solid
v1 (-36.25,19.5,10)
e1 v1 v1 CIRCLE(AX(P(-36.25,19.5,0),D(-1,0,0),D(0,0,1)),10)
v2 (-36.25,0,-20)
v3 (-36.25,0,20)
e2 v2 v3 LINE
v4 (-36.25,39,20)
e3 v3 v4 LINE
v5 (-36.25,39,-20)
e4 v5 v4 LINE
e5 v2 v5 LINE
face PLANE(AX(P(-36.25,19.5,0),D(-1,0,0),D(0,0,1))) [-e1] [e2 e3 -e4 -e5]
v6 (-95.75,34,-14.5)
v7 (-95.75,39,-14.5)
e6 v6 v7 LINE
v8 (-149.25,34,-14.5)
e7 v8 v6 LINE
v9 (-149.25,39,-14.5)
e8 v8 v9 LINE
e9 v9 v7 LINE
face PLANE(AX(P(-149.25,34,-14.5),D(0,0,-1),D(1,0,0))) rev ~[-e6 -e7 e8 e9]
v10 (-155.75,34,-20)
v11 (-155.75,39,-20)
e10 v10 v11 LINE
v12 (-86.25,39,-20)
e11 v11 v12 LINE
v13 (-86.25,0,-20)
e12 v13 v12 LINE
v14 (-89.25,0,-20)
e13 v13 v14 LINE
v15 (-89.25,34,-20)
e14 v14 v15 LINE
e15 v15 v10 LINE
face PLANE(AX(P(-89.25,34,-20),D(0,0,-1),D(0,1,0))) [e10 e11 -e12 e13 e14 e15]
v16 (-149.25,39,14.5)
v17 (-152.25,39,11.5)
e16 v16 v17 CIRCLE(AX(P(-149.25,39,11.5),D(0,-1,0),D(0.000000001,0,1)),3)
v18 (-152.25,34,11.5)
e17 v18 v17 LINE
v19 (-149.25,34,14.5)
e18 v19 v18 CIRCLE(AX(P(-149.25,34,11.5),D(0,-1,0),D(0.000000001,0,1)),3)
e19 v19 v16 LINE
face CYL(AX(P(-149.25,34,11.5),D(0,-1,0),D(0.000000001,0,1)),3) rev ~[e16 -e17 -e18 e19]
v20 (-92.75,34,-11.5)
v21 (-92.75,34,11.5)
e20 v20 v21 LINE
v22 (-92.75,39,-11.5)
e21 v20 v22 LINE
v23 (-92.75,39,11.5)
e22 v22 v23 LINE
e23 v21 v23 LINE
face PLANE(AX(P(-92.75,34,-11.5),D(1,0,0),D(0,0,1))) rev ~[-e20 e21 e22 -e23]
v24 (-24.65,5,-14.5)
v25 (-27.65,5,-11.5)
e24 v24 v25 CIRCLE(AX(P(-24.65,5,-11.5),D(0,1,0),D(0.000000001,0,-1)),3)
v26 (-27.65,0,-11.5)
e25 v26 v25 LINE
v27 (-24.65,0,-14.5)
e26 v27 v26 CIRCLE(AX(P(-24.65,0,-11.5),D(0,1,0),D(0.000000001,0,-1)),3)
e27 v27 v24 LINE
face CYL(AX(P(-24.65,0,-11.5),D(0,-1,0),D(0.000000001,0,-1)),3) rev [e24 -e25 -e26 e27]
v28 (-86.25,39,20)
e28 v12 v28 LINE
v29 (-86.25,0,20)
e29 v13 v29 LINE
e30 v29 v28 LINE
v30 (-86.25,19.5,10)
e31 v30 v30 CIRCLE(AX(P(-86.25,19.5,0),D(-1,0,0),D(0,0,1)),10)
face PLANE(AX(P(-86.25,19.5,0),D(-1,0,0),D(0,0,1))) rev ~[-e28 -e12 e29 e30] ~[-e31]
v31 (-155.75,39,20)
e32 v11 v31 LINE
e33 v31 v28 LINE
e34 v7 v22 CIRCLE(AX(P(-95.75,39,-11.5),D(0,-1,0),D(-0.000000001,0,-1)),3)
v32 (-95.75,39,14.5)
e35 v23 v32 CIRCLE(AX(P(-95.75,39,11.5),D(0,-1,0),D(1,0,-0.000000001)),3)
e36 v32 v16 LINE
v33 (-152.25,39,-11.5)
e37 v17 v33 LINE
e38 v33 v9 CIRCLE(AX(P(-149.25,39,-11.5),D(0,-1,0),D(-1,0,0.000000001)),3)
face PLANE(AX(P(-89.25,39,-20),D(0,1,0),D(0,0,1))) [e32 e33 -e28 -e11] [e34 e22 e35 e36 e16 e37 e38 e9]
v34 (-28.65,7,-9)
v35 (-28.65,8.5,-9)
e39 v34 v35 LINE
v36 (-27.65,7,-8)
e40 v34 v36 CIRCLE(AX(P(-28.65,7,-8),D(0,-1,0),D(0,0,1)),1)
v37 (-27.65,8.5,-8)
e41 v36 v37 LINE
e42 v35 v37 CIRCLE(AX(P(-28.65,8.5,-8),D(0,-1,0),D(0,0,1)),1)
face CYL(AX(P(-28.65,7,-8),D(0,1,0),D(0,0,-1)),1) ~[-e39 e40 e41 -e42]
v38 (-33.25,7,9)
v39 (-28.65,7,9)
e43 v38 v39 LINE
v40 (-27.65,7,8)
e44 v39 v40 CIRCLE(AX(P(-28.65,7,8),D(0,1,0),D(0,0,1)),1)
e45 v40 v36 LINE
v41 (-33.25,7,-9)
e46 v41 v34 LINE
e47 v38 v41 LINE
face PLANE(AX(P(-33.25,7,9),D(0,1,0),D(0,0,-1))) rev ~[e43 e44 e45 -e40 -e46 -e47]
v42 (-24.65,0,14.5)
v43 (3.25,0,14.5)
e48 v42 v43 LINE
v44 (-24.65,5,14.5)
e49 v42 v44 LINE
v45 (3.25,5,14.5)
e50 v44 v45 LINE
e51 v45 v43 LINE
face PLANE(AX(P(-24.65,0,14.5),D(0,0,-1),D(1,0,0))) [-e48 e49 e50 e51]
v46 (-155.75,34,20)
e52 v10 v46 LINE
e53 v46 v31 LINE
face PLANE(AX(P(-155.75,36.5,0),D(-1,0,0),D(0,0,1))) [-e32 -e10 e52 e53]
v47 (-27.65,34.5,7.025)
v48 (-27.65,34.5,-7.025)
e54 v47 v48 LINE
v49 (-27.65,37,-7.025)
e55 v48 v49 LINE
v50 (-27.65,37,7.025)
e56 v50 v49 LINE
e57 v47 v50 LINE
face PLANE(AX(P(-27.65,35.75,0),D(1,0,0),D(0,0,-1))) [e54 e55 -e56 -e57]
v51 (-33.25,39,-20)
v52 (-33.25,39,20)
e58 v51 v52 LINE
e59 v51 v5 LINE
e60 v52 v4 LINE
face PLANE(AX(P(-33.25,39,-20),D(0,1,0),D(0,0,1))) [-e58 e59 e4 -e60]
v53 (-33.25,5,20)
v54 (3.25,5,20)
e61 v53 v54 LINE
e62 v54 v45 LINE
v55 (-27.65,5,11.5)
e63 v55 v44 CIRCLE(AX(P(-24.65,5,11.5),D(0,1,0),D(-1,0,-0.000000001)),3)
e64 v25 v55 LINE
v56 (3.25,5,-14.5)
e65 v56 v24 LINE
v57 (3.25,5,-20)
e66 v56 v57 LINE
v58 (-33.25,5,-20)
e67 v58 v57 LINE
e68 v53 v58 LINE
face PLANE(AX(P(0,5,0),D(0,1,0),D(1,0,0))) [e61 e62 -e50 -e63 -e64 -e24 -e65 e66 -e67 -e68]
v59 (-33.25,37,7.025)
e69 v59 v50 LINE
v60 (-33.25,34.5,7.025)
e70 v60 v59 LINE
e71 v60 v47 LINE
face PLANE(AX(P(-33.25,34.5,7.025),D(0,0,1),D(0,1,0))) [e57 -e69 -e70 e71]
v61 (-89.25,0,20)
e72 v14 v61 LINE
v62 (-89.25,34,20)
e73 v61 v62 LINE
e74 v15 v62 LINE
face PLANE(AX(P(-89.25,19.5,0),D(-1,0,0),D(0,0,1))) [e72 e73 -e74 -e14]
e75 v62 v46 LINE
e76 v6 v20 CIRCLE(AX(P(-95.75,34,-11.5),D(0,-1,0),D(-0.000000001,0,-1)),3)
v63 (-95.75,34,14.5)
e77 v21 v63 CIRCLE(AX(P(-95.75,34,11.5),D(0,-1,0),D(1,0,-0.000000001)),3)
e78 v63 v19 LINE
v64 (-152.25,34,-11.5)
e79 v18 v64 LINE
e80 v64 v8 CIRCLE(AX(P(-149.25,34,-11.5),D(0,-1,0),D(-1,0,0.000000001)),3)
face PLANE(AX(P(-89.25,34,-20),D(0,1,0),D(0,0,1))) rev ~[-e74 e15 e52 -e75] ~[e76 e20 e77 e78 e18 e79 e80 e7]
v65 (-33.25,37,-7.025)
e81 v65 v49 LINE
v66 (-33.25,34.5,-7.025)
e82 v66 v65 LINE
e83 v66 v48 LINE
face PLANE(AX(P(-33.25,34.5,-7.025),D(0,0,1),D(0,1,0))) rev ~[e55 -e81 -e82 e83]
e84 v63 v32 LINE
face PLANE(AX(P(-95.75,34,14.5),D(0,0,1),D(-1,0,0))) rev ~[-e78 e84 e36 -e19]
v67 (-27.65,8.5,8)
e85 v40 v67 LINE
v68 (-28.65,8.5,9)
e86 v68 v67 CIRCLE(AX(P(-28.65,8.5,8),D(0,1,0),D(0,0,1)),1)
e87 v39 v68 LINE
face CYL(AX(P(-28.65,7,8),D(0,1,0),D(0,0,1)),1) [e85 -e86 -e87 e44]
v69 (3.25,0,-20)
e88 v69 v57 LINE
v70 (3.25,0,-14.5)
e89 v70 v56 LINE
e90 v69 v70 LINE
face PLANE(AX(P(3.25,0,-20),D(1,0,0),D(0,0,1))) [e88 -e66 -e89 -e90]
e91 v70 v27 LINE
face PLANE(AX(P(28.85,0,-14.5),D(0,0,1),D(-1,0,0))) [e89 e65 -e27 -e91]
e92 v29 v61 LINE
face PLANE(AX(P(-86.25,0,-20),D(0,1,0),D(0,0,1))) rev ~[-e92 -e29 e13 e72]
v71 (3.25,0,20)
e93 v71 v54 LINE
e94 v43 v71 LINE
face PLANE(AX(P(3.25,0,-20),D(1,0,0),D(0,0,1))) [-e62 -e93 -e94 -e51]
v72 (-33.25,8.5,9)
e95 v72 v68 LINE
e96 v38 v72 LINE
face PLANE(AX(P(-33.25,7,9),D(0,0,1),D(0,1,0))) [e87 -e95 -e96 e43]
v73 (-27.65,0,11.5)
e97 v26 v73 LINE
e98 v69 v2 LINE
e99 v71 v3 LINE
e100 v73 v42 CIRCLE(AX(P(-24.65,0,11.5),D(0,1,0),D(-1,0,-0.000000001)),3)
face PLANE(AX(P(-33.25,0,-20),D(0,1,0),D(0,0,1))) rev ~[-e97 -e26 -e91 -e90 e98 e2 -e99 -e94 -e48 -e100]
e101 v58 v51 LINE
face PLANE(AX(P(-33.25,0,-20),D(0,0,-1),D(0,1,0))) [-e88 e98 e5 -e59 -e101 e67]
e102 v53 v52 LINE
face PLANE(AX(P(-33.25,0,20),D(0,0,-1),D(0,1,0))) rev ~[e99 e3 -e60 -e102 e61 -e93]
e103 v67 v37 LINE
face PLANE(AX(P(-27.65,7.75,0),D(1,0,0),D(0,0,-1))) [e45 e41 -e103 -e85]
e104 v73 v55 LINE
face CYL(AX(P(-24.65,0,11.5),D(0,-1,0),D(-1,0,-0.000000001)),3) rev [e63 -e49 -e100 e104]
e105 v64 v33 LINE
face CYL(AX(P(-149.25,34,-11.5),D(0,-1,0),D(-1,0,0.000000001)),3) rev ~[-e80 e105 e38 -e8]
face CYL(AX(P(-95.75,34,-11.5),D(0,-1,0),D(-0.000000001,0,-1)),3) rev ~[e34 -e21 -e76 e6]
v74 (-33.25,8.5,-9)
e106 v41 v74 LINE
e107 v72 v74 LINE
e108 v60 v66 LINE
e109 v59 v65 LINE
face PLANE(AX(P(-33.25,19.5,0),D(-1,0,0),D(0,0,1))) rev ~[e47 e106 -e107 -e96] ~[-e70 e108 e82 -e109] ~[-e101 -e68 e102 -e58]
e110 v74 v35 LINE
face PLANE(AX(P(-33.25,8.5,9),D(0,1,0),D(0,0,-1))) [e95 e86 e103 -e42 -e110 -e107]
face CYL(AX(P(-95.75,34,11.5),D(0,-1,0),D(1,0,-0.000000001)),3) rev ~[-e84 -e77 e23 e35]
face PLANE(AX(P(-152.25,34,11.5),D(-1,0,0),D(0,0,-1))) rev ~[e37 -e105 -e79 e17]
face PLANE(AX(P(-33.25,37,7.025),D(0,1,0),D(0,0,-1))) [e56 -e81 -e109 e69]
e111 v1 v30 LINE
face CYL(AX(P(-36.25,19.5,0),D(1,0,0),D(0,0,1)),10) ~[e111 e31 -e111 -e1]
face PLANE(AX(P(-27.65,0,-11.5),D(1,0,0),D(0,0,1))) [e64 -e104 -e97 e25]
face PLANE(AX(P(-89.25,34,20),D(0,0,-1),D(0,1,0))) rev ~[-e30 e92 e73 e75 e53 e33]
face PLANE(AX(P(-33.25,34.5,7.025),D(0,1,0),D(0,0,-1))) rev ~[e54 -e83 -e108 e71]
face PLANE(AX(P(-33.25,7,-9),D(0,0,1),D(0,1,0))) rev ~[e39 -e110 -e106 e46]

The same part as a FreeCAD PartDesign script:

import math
import FreeCAD as App
import Part
import Sketcher


def edges_at(feature, points):
    """Names of the edges that pass closest to the given points."""
    edges = feature.Shape.Edges
    near = lambda p: min(range(len(edges)), key=lambda i: edges[i].distToShape(Part.Vertex(*p))[0])
    return sorted({f"Edge{near(p) + 1}" for p in points})


def add_polygon(sketch, points):
    """Adds a closed chain of lines whose ends are joined by coincident constraints."""
    first, n = sketch.GeometryCount, len(points)
    for a, b in zip(points, points[1:] + points[:1]):
        sketch.addGeometry(Part.LineSegment(App.Vector(*a, 0), App.Vector(*b, 0)), False)
    for i in range(n):
        sketch.addConstraint(Sketcher.Constraint("Coincident", first + i, 2, first + (i + 1) % n, 1))

doc = App.newDocument("Part")
body = doc.addObject("PartDesign::Body", "Body")

# Sketch on XZ plane
sketch1 = doc.addObject("Sketcher::SketchObject", "Sketch")
body.addObject(sketch1)
sketch1.AttachmentSupport = (doc.XZ_Plane, [""])
sketch1.MapMode = "FlatFace"
add_polygon(sketch1, [(-33.2, -20), (-33.2, 20), (33.2, 20), (33.2, -20)])  # lines 0-3
sketch1.addGeometry(Part.LineSegment(App.Vector(-27.6, 11.5, 0), App.Vector(-27.6, -11.5, 0)), False)  # 4
sketch1.addGeometry(Part.ArcOfCircle(Part.Circle(App.Vector(-24.7, -11.5, 0), App.Vector(0, 0, 1), 3), math.radians(180), math.radians(270)), False)  # 5
sketch1.addGeometry(Part.LineSegment(App.Vector(-24.6, -14.5, 0), App.Vector(28.9, -14.5, 0)), False)  # 6
sketch1.addGeometry(Part.ArcOfCircle(Part.Circle(App.Vector(28.9, -11.5, 0), App.Vector(0, 0, 1), 3), math.radians(-90), math.radians(0)), False)  # 7
sketch1.addGeometry(Part.LineSegment(App.Vector(31.9, -11.5, 0), App.Vector(31.9, 11.5, 0)), False)  # 8
sketch1.addGeometry(Part.ArcOfCircle(Part.Circle(App.Vector(28.9, 11.5, 0), App.Vector(0, 0, 1), 3), math.radians(0), math.radians(90)), False)  # 9
sketch1.addGeometry(Part.LineSegment(App.Vector(28.9, 14.5, 0), App.Vector(-24.6, 14.5, 0)), False)  # 10
sketch1.addGeometry(Part.ArcOfCircle(Part.Circle(App.Vector(-24.7, 11.5, 0), App.Vector(0, 0, 1), 3), math.radians(90), math.radians(180)), False)  # 11
sketch1.addConstraint(Sketcher.Constraint("Tangent", 4, 2, 5, 1))
sketch1.addConstraint(Sketcher.Constraint("Tangent", 5, 2, 6, 1))
sketch1.addConstraint(Sketcher.Constraint("Tangent", 6, 2, 7, 1))
sketch1.addConstraint(Sketcher.Constraint("Tangent", 7, 2, 8, 1))
sketch1.addConstraint(Sketcher.Constraint("Tangent", 8, 2, 9, 1))
sketch1.addConstraint(Sketcher.Constraint("Tangent", 9, 2, 10, 1))
sketch1.addConstraint(Sketcher.Constraint("Tangent", 10, 2, 11, 1))
sketch1.addConstraint(Sketcher.Constraint("Tangent", 11, 2, 4, 1))
sketch1.addConstraint(Sketcher.Constraint("Vertical", 0))
sketch1.addConstraint(Sketcher.Constraint("Horizontal", 1))
sketch1.addConstraint(Sketcher.Constraint("Vertical", 2))
sketch1.addConstraint(Sketcher.Constraint("Horizontal", 3))
sketch1.addConstraint(Sketcher.Constraint("Vertical", 4))
sketch1.addConstraint(Sketcher.Constraint("Horizontal", 6))
sketch1.addConstraint(Sketcher.Constraint("Vertical", 8))
sketch1.addConstraint(Sketcher.Constraint("Horizontal", 10))
sketch1.addConstraint(Sketcher.Constraint("Equal", 5, 7))
sketch1.addConstraint(Sketcher.Constraint("Equal", 7, 9))
sketch1.addConstraint(Sketcher.Constraint("Equal", 9, 11))
sketch1.addConstraint(Sketcher.Constraint("Symmetric", 0, 2, 2, 2, -1, 1))
sketch1.addConstraint(Sketcher.Constraint("Radius", 5, 3.0))
sketch1.addConstraint(Sketcher.Constraint("DistanceY", 0, 1, 0, 2, 40.0))
sketch1.addConstraint(Sketcher.Constraint("DistanceY", 4, 2, 4, 1, 23.0))
sketch1.addConstraint(Sketcher.Constraint("DistanceX", 1, 1, 1, 2, 66.5))
sketch1.addConstraint(Sketcher.Constraint("DistanceX", 6, 1, 6, 2, 53.5))
sketch1.addConstraint(Sketcher.Constraint("DistanceY", 5, 3, -1, 1, 11.5))
sketch1.addConstraint(Sketcher.Constraint("DistanceX", 0, 2, 11, 3, 8.6))
pad1 = doc.addObject("PartDesign::Pad", "Pad")
body.addObject(pad1)
pad1.Profile = sketch1
pad1.Length = 5
pad1.Reversed = True

# Sketch on YZ plane
sketch2 = doc.addObject("Sketcher::SketchObject", "Sketch001")
body.addObject(sketch2)
sketch2.AttachmentSupport = (doc.YZ_Plane, [""])
sketch2.MapMode = "FlatFace"
sketch2.AttachmentOffset = App.Placement(App.Vector(0, 0, -33.25), App.Rotation())
add_polygon(sketch2, [(39, -20), (0, -20), (0, 20), (39, 20)])  # lines 0-3
sketch2.addConstraint(Sketcher.Constraint("Horizontal", 0))
sketch2.addConstraint(Sketcher.Constraint("Vertical", 1))
sketch2.addConstraint(Sketcher.Constraint("Horizontal", 2))
sketch2.addConstraint(Sketcher.Constraint("Vertical", 3))
sketch2.addConstraint(Sketcher.Constraint("Symmetric", 0, 2, 1, 2, -1, 1))
sketch2.addConstraint(Sketcher.Constraint("DistanceX", 0, 2, 0, 1, 39.0))
sketch2.addConstraint(Sketcher.Constraint("DistanceY", 1, 1, 1, 2, 40.0))
pad2 = doc.addObject("PartDesign::Pad", "Pad001")
body.addObject(pad2)
pad2.Profile = sketch2
pad2.Length = 3
pad2.Reversed = True

# Sketch on YZ plane
sketch3 = doc.addObject("Sketcher::SketchObject", "Sketch002")
body.addObject(sketch3)
sketch3.AttachmentSupport = (doc.YZ_Plane, [""])
sketch3.MapMode = "FlatFace"
sketch3.AttachmentOffset = App.Placement(App.Vector(0, 0, -33.25), App.Rotation())
add_polygon(sketch3, [(37, 7), (34.5, 7), (34.5, -7), (37, -7)])  # lines 0-3
add_polygon(sketch3, [(8.5, 9), (7, 9), (7, -9), (8.5, -9)])  # lines 4-7
sketch3.addConstraint(Sketcher.Constraint("Horizontal", 0))
sketch3.addConstraint(Sketcher.Constraint("Vertical", 1))
sketch3.addConstraint(Sketcher.Constraint("Horizontal", 2))
sketch3.addConstraint(Sketcher.Constraint("Vertical", 3))
sketch3.addConstraint(Sketcher.Constraint("Horizontal", 4))
sketch3.addConstraint(Sketcher.Constraint("Vertical", 5))
sketch3.addConstraint(Sketcher.Constraint("Horizontal", 6))
sketch3.addConstraint(Sketcher.Constraint("Vertical", 7))
sketch3.addConstraint(Sketcher.Constraint("DistanceY", 5, 2, 5, 1, 18.0))
sketch3.addConstraint(Sketcher.Constraint("DistanceX", 0, 2, 0, 1, 2.5))
sketch3.addConstraint(Sketcher.Constraint("DistanceX", 4, 2, 4, 1, 1.5))
sketch3.addConstraint(Sketcher.Constraint("DistanceX", -1, 1, 2, 2, 37.0))
sketch3.addConstraint(Sketcher.Constraint("DistanceX", -1, 1, 4, 2, 7.0))
sketch3.addConstraint(Sketcher.Constraint("DistanceY", -1, 1, 4, 2, 9.0))
sketch3.addConstraint(Sketcher.Constraint("DistanceY", 1, 2, 1, 1, 14.05))
sketch3.addConstraint(Sketcher.Constraint("DistanceY", -1, 1, 0, 2, 7.025))
pad3 = doc.addObject("PartDesign::Pad", "Pad002")
body.addObject(pad3)
pad3.Profile = sketch3
pad3.Length = 5.6
doc.recompute()

fillet = doc.addObject("PartDesign::Fillet", "Fillet")
body.addObject(fillet)
fillet.Base = (pad3, edges_at(pad3, [(-27.65, 7.75, -9), (-27.65, 7.75, 9)]))
fillet.Radius = 1
doc.recompute()

fillet2 = doc.addObject("PartDesign::Fillet", "Fillet001")
body.addObject(fillet2)
fillet2.Base = (fillet, edges_at(fillet, [(33.25, 2.5, 20), (33.25, 2.5, -20)]))
fillet2.Radius = 10

# Sketch on XZ plane
sketch4 = doc.addObject("Sketcher::SketchObject", "Sketch003")
body.addObject(sketch4)
sketch4.AttachmentSupport = (doc.XZ_Plane, [""])
sketch4.MapMode = "FlatFace"
add_polygon(sketch4, [(3, 20), (3, -20), (33, -20), (33, 20)])  # lines 0-3
sketch4.addConstraint(Sketcher.Constraint("Vertical", 0))
sketch4.addConstraint(Sketcher.Constraint("Horizontal", 1))
sketch4.addConstraint(Sketcher.Constraint("Vertical", 2))
sketch4.addConstraint(Sketcher.Constraint("Horizontal", 3))
sketch4.addConstraint(Sketcher.Constraint("DistanceX", 1, 1, 1, 2, 30.0))
sketch4.addConstraint(Sketcher.Constraint("DistanceY", 0, 2, 0, 1, 40.0))
sketch4.addConstraint(Sketcher.Constraint("DistanceY", 0, 2, -1, 1, 20.0))
sketch4.addConstraint(Sketcher.Constraint("DistanceX", -1, 1, 0, 2, 3.25))
pocket1 = doc.addObject("PartDesign::Pocket", "Pocket")
body.addObject(pocket1)
pocket1.Profile = sketch4
pocket1.Length = 10

# Sketch on YZ plane
sketch5 = doc.addObject("Sketcher::SketchObject", "Sketch004")
body.addObject(sketch5)
sketch5.AttachmentSupport = (doc.YZ_Plane, [""])
sketch5.MapMode = "FlatFace"
sketch5.AttachmentOffset = App.Placement(App.Vector(0, 0, -36.25), App.Rotation())
sketch5.addGeometry(Part.Circle(App.Vector(20, 0, 0), App.Vector(0, 0, 1), 10), False)
sketch5.addConstraint(Sketcher.Constraint("PointOnObject", 0, 3, -1))
sketch5.addConstraint(Sketcher.Constraint("Diameter", 0, 20.0))
sketch5.addConstraint(Sketcher.Constraint("DistanceX", -1, 1, 0, 3, 19.5))
pad4 = doc.addObject("PartDesign::Pad", "Pad003")
body.addObject(pad4)
pad4.Profile = sketch5
pad4.Length = 50
pad4.Reversed = True

# Sketch on YZ plane
sketch6 = doc.addObject("Sketcher::SketchObject", "Sketch005")
body.addObject(sketch6)
sketch6.AttachmentSupport = (doc.YZ_Plane, [""])
sketch6.MapMode = "FlatFace"
sketch6.AttachmentOffset = App.Placement(App.Vector(0, 0, -86.25), App.Rotation())
add_polygon(sketch6, [(39, -20), (0, -20), (0, 20), (39, 20)])  # lines 0-3
sketch6.addConstraint(Sketcher.Constraint("Horizontal", 0))
sketch6.addConstraint(Sketcher.Constraint("Vertical", 1))
sketch6.addConstraint(Sketcher.Constraint("Horizontal", 2))
sketch6.addConstraint(Sketcher.Constraint("Vertical", 3))
sketch6.addConstraint(Sketcher.Constraint("Symmetric", 0, 2, 1, 2, -1, 1))
sketch6.addConstraint(Sketcher.Constraint("DistanceX", 0, 2, 0, 1, 39.0))
sketch6.addConstraint(Sketcher.Constraint("DistanceY", 1, 1, 1, 2, 40.0))
pad5 = doc.addObject("PartDesign::Pad", "Pad004")
body.addObject(pad5)
pad5.Profile = sketch6
pad5.Length = 3
pad5.Reversed = True

# Sketch on YZ plane
sketch7 = doc.addObject("Sketcher::SketchObject", "Sketch006")
body.addObject(sketch7)
sketch7.AttachmentSupport = (doc.YZ_Plane, [""])
sketch7.MapMode = "FlatFace"
sketch7.AttachmentOffset = App.Placement(App.Vector(0, 0, -89.25), App.Rotation())
add_polygon(sketch7, [(39, -20), (34, -20), (34, 20), (39, 20)])  # lines 0-3
sketch7.addConstraint(Sketcher.Constraint("Horizontal", 0))
sketch7.addConstraint(Sketcher.Constraint("Vertical", 1))
sketch7.addConstraint(Sketcher.Constraint("Horizontal", 2))
sketch7.addConstraint(Sketcher.Constraint("Vertical", 3))
sketch7.addConstraint(Sketcher.Constraint("DistanceX", 0, 2, 0, 1, 5.0))
sketch7.addConstraint(Sketcher.Constraint("DistanceY", 1, 1, 1, 2, 40.0))
sketch7.addConstraint(Sketcher.Constraint("DistanceX", -1, 1, 0, 2, 34.0))
sketch7.addConstraint(Sketcher.Constraint("DistanceY", 0, 2, -1, 1, 20.0))
pad6 = doc.addObject("PartDesign::Pad", "Pad005")
body.addObject(pad6)
pad6.Profile = sketch7
pad6.Length = 66.5
pad6.Reversed = True

# Sketch on XZ plane
sketch8 = doc.addObject("Sketcher::SketchObject", "Sketch007")
body.addObject(sketch8)
sketch8.AttachmentSupport = (doc.XZ_Plane, [""])
sketch8.MapMode = "FlatFace"
sketch8.AttachmentOffset = App.Placement(App.Vector(0, 0, -34), App.Rotation())
sketch8.addGeometry(Part.LineSegment(App.Vector(-152.2, 11.5, 0), App.Vector(-152.2, -11.5, 0)), False)
sketch8.addGeometry(Part.ArcOfCircle(Part.Circle(App.Vector(-149.3, -11.5, 0), App.Vector(0, 0, 1), 3), math.radians(180), math.radians(270)), False)
sketch8.addGeometry(Part.LineSegment(App.Vector(-149.2, -14.5, 0), App.Vector(-95.8, -14.5, 0)), False)
sketch8.addGeometry(Part.ArcOfCircle(Part.Circle(App.Vector(-95.7, -11.5, 0), App.Vector(0, 0, 1), 3), math.radians(-90), math.radians(0)), False)
sketch8.addGeometry(Part.LineSegment(App.Vector(-92.8, -11.5, 0), App.Vector(-92.8, 11.5, 0)), False)
sketch8.addGeometry(Part.ArcOfCircle(Part.Circle(App.Vector(-95.7, 11.5, 0), App.Vector(0, 0, 1), 3), math.radians(0), math.radians(90)), False)
sketch8.addGeometry(Part.LineSegment(App.Vector(-95.8, 14.5, 0), App.Vector(-149.2, 14.5, 0)), False)
sketch8.addGeometry(Part.ArcOfCircle(Part.Circle(App.Vector(-149.3, 11.5, 0), App.Vector(0, 0, 1), 3), math.radians(90), math.radians(180)), False)
sketch8.addConstraint(Sketcher.Constraint("Tangent", 0, 2, 1, 1))
sketch8.addConstraint(Sketcher.Constraint("Tangent", 1, 2, 2, 1))
sketch8.addConstraint(Sketcher.Constraint("Tangent", 2, 2, 3, 1))
sketch8.addConstraint(Sketcher.Constraint("Tangent", 3, 2, 4, 1))
sketch8.addConstraint(Sketcher.Constraint("Tangent", 4, 2, 5, 1))
sketch8.addConstraint(Sketcher.Constraint("Tangent", 5, 2, 6, 1))
sketch8.addConstraint(Sketcher.Constraint("Tangent", 6, 2, 7, 1))
sketch8.addConstraint(Sketcher.Constraint("Tangent", 7, 2, 0, 1))
sketch8.addConstraint(Sketcher.Constraint("Vertical", 0))
sketch8.addConstraint(Sketcher.Constraint("Horizontal", 2))
sketch8.addConstraint(Sketcher.Constraint("Vertical", 4))
sketch8.addConstraint(Sketcher.Constraint("Horizontal", 6))
sketch8.addConstraint(Sketcher.Constraint("Equal", 1, 3))
sketch8.addConstraint(Sketcher.Constraint("Equal", 3, 5))
sketch8.addConstraint(Sketcher.Constraint("Equal", 5, 7))
sketch8.addConstraint(Sketcher.Constraint("Radius", 1, 3.0))
sketch8.addConstraint(Sketcher.Constraint("DistanceY", 0, 2, 0, 1, 23.0))
sketch8.addConstraint(Sketcher.Constraint("DistanceX", 2, 1, 2, 2, 53.5))
sketch8.addConstraint(Sketcher.Constraint("DistanceY", 1, 3, -1, 1, 11.5))
sketch8.addConstraint(Sketcher.Constraint("DistanceX", 1, 3, -1, 1, 149.25))
pocket2 = doc.addObject("PartDesign::Pocket", "Pocket001")
body.addObject(pocket2)
pocket2.Profile = sketch8
pocket2.Length = 5

doc.recompute()
